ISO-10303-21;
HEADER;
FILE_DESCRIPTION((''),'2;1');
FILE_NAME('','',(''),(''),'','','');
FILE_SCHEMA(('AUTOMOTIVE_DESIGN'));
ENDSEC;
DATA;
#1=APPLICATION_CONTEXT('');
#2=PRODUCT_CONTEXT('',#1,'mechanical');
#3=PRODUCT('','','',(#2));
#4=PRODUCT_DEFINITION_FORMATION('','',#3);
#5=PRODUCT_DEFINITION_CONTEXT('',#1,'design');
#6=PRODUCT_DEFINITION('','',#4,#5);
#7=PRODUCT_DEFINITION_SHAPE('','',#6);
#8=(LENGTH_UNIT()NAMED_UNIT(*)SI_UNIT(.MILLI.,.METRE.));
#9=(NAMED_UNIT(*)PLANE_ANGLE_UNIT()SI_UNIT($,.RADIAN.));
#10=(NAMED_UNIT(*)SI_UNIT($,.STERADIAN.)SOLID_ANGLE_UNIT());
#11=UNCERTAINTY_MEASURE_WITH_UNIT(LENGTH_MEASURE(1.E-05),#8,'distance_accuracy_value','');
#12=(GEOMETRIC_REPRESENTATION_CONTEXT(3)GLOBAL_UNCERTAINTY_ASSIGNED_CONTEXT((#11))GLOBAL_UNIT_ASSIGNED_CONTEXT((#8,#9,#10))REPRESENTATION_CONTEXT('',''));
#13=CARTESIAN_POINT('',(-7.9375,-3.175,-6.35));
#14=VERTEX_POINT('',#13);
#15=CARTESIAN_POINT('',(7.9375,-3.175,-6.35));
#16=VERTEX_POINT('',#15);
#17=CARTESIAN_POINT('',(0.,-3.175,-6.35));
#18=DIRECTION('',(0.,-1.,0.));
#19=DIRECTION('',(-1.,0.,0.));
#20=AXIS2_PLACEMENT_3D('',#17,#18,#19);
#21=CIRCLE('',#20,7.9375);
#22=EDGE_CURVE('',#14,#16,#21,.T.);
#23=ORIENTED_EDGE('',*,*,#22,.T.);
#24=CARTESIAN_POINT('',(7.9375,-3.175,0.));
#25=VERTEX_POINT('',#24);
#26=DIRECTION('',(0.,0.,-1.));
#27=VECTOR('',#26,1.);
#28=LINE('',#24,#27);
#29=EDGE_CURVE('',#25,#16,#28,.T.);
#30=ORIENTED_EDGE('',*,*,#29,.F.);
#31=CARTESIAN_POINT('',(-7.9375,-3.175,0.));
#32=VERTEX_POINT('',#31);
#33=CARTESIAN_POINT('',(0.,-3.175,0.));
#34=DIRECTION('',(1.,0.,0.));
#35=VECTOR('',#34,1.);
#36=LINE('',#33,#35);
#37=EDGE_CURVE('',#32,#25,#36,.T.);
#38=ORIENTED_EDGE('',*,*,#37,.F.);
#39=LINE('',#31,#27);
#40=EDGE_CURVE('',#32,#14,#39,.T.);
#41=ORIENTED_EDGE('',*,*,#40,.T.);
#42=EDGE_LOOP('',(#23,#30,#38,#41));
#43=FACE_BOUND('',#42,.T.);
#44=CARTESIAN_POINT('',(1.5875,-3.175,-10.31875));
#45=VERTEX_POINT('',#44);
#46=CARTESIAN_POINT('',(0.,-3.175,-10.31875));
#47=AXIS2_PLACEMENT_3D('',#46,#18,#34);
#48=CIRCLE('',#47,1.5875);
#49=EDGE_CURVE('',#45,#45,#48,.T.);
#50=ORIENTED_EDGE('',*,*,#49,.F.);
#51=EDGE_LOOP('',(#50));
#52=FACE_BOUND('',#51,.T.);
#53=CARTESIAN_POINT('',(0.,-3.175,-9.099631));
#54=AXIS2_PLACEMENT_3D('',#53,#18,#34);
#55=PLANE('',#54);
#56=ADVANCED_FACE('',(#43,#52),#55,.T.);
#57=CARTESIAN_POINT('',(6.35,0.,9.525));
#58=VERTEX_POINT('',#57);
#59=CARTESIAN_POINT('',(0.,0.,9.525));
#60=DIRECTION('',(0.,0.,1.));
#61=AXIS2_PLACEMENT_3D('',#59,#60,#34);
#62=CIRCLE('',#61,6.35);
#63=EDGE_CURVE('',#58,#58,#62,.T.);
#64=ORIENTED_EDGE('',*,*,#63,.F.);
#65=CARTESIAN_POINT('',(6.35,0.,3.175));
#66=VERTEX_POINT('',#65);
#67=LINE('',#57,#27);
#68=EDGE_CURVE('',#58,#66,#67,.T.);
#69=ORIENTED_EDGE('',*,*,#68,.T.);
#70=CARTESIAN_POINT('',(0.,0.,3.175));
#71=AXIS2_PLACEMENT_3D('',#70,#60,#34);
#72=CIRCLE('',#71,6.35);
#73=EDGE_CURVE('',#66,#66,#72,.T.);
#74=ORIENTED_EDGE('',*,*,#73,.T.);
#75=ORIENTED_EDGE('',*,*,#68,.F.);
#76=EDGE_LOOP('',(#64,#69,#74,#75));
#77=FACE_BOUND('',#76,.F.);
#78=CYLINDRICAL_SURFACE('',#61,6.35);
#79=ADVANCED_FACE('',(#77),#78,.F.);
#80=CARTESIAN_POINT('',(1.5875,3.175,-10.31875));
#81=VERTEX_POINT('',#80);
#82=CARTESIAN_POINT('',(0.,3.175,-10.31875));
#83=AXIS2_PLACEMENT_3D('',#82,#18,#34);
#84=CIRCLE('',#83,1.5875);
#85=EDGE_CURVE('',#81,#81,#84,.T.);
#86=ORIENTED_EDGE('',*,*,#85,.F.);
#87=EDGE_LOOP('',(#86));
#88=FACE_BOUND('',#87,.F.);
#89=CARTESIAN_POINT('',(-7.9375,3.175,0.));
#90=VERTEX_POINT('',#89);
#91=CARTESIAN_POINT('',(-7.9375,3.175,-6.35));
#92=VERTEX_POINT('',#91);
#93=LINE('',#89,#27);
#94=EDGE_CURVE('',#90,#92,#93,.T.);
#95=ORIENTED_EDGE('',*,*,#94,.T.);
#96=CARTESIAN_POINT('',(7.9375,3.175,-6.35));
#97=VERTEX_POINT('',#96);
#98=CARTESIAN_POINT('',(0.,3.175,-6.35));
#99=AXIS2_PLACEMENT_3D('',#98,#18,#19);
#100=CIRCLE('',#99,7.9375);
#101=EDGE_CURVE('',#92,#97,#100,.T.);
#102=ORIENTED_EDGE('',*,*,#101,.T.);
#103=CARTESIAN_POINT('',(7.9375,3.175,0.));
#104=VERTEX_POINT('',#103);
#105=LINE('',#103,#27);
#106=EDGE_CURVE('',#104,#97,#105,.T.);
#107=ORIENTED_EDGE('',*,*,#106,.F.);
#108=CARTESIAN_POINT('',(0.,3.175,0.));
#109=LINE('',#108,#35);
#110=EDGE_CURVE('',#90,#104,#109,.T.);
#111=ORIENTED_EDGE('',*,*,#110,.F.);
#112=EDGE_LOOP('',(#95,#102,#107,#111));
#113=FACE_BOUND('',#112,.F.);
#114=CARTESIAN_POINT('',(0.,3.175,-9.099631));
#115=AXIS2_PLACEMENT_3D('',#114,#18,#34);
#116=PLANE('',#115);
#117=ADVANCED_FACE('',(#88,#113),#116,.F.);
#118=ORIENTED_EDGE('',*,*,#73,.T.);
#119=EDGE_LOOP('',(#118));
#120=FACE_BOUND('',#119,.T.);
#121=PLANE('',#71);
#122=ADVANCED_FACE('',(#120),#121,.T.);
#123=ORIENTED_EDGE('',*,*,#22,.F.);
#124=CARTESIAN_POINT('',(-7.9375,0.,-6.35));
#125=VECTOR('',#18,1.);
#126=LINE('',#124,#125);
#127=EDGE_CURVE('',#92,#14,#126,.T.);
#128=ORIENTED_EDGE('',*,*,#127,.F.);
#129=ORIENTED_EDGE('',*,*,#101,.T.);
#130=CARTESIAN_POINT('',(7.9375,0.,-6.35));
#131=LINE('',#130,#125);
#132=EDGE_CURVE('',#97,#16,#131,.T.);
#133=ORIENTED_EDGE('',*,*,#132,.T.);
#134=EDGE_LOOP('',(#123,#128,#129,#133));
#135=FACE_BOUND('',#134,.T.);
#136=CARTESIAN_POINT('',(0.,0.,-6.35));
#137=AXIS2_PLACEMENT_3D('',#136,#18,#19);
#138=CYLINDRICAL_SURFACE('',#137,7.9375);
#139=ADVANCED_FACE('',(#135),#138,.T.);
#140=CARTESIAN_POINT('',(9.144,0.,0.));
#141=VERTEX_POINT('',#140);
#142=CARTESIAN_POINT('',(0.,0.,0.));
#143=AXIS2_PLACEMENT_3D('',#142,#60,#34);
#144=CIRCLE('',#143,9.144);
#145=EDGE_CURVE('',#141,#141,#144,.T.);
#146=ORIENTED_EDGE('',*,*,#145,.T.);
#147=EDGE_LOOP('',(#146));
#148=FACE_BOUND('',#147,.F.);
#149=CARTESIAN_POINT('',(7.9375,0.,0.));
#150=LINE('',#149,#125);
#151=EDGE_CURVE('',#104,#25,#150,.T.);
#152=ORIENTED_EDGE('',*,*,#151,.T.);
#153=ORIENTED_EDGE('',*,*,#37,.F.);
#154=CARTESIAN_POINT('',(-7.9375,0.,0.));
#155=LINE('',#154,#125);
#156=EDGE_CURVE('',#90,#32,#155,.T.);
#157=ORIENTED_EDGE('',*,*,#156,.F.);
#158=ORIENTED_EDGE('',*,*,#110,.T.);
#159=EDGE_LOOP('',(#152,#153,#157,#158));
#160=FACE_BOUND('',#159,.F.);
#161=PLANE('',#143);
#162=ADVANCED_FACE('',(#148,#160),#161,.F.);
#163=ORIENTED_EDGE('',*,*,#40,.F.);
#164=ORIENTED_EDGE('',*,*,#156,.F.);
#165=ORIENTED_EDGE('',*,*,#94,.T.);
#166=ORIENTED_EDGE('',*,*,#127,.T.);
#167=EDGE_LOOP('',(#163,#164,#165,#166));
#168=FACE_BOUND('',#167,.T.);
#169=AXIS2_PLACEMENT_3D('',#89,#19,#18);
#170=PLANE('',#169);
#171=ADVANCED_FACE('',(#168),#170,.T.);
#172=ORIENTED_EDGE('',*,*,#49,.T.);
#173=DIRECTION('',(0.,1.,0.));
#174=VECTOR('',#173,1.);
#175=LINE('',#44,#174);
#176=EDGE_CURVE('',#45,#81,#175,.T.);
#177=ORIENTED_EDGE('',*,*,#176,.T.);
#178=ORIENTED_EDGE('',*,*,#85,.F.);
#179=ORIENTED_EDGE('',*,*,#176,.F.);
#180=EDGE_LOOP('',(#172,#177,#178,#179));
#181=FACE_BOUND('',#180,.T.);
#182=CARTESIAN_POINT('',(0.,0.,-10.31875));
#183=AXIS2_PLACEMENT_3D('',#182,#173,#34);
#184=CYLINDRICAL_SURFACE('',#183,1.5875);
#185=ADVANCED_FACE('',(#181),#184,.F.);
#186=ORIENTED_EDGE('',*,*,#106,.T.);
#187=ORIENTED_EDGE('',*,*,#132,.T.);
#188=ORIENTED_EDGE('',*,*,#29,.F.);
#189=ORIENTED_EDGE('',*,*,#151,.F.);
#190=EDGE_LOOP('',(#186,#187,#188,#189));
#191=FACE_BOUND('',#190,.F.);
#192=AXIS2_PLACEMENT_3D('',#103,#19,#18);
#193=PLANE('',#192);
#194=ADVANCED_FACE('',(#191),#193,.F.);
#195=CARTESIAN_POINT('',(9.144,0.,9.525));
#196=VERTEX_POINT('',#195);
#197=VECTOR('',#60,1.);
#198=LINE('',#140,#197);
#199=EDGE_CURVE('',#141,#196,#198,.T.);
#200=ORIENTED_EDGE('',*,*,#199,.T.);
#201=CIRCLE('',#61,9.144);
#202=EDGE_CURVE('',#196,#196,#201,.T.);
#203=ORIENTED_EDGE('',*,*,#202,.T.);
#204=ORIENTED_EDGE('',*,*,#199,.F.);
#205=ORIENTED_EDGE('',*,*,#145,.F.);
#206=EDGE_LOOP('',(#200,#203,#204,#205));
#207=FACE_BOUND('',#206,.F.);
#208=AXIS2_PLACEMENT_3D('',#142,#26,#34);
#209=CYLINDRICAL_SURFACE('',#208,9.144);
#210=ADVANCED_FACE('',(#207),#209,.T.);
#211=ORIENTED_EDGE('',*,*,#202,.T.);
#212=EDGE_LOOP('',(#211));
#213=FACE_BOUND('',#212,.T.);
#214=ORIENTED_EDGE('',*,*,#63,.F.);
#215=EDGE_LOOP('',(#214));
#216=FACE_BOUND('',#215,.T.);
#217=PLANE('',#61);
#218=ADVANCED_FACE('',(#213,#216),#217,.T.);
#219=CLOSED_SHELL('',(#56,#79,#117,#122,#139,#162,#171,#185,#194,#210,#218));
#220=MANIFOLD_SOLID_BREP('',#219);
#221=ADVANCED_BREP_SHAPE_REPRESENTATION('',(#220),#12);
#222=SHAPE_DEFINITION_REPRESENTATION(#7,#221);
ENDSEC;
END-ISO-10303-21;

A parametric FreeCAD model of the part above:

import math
import FreeCAD as App
import Part
import Sketcher

V = App.Vector
Q = App.Units.Quantity

doc = App.newDocument("Part")
body = doc.addObject("PartDesign::Body", "Body")

sketch1 = body.newObject("Sketcher::SketchObject", "Sketch")
sketch1.AttachmentSupport = (doc.getObject("XY_Plane"), [""])
sketch1.MapMode = "FlatFace"
sketch1.addGeometry(Part.Circle(V(0, 0, 0), V(0, 0, 1), 9), False)
sketch1.addConstraint(Sketcher.Constraint("Coincident", 0, 3, -1, 1))
sketch1.addConstraint(Sketcher.Constraint("Diameter", 0, Q("0.72 in")))
pad1 = body.newObject("PartDesign::Pad", "Pad")
pad1.Profile = sketch1
pad1.Length = Q("0.375 in")

sketch2 = body.newObject("Sketcher::SketchObject", "Sketch001")
sketch2.AttachmentSupport = (doc.getObject("XY_Plane"), [""])
sketch2.MapMode = "FlatFace"
sketch2.AttachmentOffset = App.Placement(V(0, 0, 0.375 * 25.4), App.Rotation())
sketch2.addGeometry(Part.Circle(V(0, 0, 0), V(0, 0, 1), 6), False)
sketch2.addConstraint(Sketcher.Constraint("Coincident", 0, 3, -1, 1))
sketch2.addConstraint(Sketcher.Constraint("Diameter", 0, Q("0.5 in")))
pocket1 = body.newObject("PartDesign::Pocket", "Pocket")
pocket1.Profile = sketch2
pocket1.Length = Q("0.25 in")

sketch3 = body.newObject("Sketcher::SketchObject", "Sketch002")
sketch3.AttachmentSupport = (doc.getObject("XY_Plane"), [""])
sketch3.MapMode = "FlatFace"
sketch3.addGeometry(Part.LineSegment(V(-8, -3, 0), V(-8, 3, 0)), False)
sketch3.addGeometry(Part.LineSegment(V(-8, 3, 0), V(8, 3, 0)), False)
sketch3.addGeometry(Part.LineSegment(V(8, 3, 0), V(8, -3, 0)), False)
sketch3.addGeometry(Part.LineSegment(V(8, -3, 0), V(-8, -3, 0)), False)
sketch3.addConstraint(Sketcher.Constraint("Coincident", 0, 2, 1, 1))
sketch3.addConstraint(Sketcher.Constraint("Coincident", 1, 2, 2, 1))
sketch3.addConstraint(Sketcher.Constraint("Coincident", 2, 2, 3, 1))
sketch3.addConstraint(Sketcher.Constraint("Coincident", 3, 2, 0, 1))
sketch3.addConstraint(Sketcher.Constraint("Vertical", 0))
sketch3.addConstraint(Sketcher.Constraint("Horizontal", 1))
sketch3.addConstraint(Sketcher.Constraint("Vertical", 2))
sketch3.addConstraint(Sketcher.Constraint("Horizontal", 3))
sketch3.addConstraint(Sketcher.Constraint("Symmetric", 0, 2, 2, 2, -1, 1))
sketch3.addConstraint(Sketcher.Constraint("DistanceY", 0, 1, 0, 2, Q("0.25 in")))
sketch3.addConstraint(Sketcher.Constraint("DistanceX", 1, 1, 1, 2, Q("0.625 in")))
pad2 = body.newObject("PartDesign::Pad", "Pad001")
pad2.Profile = sketch3
pad2.Length = Q("0.25 in")
pad2.Reversed = True

sketch4 = body.newObject("Sketcher::SketchObject", "Sketch003")
sketch4.AttachmentSupport = (doc.getObject("XZ_Plane"), [""])
sketch4.MapMode = "FlatFace"
sketch4.addGeometry(Part.LineSegment(V(7.9, -6.3, 0), V(-7.9, -6.3, 0)), False)
sketch4.addGeometry(Part.ArcOfCircle(Part.Circle(V(0, -6.3, 0), V(0, 0, 1), 7.9), math.radians(180), math.radians(360)), False)
sketch4.addGeometry(Part.Circle(V(0, -10.3, 0), V(0, 0, 1), 1.6), False)
sketch4.addConstraint(Sketcher.Constraint("Coincident", 0, 1, 1, 2))
sketch4.addConstraint(Sketcher.Constraint("Coincident", 1, 1, 0, 2))
sketch4.addConstraint(Sketcher.Constraint("Horizontal", 0))
sketch4.addConstraint(Sketcher.Constraint("PointOnObject", 1, 3, -2))
sketch4.addConstraint(Sketcher.Constraint("PointOnObject", 2, 3, -2))
sketch4.addConstraint(Sketcher.Constraint("Horizontal", 1, 3, 0, 1))
sketch4.addConstraint(Sketcher.Constraint("Diameter", 2, Q("0.125 in")))
sketch4.addConstraint(Sketcher.Constraint("Radius", 1, Q("0.3125 in")))
sketch4.addConstraint(Sketcher.Constraint("DistanceY", 1, 3, -1, 1, Q("0.25 in")))
sketch4.addConstraint(Sketcher.Constraint("DistanceY", 2, 3, -1, 1, Q("0.40625 in")))
pad3 = body.newObject("PartDesign::Pad", "Pad002")
pad3.Profile = sketch4
pad3.Length = Q("0.25 in")
pad3.Midplane = True

doc.recompute()
